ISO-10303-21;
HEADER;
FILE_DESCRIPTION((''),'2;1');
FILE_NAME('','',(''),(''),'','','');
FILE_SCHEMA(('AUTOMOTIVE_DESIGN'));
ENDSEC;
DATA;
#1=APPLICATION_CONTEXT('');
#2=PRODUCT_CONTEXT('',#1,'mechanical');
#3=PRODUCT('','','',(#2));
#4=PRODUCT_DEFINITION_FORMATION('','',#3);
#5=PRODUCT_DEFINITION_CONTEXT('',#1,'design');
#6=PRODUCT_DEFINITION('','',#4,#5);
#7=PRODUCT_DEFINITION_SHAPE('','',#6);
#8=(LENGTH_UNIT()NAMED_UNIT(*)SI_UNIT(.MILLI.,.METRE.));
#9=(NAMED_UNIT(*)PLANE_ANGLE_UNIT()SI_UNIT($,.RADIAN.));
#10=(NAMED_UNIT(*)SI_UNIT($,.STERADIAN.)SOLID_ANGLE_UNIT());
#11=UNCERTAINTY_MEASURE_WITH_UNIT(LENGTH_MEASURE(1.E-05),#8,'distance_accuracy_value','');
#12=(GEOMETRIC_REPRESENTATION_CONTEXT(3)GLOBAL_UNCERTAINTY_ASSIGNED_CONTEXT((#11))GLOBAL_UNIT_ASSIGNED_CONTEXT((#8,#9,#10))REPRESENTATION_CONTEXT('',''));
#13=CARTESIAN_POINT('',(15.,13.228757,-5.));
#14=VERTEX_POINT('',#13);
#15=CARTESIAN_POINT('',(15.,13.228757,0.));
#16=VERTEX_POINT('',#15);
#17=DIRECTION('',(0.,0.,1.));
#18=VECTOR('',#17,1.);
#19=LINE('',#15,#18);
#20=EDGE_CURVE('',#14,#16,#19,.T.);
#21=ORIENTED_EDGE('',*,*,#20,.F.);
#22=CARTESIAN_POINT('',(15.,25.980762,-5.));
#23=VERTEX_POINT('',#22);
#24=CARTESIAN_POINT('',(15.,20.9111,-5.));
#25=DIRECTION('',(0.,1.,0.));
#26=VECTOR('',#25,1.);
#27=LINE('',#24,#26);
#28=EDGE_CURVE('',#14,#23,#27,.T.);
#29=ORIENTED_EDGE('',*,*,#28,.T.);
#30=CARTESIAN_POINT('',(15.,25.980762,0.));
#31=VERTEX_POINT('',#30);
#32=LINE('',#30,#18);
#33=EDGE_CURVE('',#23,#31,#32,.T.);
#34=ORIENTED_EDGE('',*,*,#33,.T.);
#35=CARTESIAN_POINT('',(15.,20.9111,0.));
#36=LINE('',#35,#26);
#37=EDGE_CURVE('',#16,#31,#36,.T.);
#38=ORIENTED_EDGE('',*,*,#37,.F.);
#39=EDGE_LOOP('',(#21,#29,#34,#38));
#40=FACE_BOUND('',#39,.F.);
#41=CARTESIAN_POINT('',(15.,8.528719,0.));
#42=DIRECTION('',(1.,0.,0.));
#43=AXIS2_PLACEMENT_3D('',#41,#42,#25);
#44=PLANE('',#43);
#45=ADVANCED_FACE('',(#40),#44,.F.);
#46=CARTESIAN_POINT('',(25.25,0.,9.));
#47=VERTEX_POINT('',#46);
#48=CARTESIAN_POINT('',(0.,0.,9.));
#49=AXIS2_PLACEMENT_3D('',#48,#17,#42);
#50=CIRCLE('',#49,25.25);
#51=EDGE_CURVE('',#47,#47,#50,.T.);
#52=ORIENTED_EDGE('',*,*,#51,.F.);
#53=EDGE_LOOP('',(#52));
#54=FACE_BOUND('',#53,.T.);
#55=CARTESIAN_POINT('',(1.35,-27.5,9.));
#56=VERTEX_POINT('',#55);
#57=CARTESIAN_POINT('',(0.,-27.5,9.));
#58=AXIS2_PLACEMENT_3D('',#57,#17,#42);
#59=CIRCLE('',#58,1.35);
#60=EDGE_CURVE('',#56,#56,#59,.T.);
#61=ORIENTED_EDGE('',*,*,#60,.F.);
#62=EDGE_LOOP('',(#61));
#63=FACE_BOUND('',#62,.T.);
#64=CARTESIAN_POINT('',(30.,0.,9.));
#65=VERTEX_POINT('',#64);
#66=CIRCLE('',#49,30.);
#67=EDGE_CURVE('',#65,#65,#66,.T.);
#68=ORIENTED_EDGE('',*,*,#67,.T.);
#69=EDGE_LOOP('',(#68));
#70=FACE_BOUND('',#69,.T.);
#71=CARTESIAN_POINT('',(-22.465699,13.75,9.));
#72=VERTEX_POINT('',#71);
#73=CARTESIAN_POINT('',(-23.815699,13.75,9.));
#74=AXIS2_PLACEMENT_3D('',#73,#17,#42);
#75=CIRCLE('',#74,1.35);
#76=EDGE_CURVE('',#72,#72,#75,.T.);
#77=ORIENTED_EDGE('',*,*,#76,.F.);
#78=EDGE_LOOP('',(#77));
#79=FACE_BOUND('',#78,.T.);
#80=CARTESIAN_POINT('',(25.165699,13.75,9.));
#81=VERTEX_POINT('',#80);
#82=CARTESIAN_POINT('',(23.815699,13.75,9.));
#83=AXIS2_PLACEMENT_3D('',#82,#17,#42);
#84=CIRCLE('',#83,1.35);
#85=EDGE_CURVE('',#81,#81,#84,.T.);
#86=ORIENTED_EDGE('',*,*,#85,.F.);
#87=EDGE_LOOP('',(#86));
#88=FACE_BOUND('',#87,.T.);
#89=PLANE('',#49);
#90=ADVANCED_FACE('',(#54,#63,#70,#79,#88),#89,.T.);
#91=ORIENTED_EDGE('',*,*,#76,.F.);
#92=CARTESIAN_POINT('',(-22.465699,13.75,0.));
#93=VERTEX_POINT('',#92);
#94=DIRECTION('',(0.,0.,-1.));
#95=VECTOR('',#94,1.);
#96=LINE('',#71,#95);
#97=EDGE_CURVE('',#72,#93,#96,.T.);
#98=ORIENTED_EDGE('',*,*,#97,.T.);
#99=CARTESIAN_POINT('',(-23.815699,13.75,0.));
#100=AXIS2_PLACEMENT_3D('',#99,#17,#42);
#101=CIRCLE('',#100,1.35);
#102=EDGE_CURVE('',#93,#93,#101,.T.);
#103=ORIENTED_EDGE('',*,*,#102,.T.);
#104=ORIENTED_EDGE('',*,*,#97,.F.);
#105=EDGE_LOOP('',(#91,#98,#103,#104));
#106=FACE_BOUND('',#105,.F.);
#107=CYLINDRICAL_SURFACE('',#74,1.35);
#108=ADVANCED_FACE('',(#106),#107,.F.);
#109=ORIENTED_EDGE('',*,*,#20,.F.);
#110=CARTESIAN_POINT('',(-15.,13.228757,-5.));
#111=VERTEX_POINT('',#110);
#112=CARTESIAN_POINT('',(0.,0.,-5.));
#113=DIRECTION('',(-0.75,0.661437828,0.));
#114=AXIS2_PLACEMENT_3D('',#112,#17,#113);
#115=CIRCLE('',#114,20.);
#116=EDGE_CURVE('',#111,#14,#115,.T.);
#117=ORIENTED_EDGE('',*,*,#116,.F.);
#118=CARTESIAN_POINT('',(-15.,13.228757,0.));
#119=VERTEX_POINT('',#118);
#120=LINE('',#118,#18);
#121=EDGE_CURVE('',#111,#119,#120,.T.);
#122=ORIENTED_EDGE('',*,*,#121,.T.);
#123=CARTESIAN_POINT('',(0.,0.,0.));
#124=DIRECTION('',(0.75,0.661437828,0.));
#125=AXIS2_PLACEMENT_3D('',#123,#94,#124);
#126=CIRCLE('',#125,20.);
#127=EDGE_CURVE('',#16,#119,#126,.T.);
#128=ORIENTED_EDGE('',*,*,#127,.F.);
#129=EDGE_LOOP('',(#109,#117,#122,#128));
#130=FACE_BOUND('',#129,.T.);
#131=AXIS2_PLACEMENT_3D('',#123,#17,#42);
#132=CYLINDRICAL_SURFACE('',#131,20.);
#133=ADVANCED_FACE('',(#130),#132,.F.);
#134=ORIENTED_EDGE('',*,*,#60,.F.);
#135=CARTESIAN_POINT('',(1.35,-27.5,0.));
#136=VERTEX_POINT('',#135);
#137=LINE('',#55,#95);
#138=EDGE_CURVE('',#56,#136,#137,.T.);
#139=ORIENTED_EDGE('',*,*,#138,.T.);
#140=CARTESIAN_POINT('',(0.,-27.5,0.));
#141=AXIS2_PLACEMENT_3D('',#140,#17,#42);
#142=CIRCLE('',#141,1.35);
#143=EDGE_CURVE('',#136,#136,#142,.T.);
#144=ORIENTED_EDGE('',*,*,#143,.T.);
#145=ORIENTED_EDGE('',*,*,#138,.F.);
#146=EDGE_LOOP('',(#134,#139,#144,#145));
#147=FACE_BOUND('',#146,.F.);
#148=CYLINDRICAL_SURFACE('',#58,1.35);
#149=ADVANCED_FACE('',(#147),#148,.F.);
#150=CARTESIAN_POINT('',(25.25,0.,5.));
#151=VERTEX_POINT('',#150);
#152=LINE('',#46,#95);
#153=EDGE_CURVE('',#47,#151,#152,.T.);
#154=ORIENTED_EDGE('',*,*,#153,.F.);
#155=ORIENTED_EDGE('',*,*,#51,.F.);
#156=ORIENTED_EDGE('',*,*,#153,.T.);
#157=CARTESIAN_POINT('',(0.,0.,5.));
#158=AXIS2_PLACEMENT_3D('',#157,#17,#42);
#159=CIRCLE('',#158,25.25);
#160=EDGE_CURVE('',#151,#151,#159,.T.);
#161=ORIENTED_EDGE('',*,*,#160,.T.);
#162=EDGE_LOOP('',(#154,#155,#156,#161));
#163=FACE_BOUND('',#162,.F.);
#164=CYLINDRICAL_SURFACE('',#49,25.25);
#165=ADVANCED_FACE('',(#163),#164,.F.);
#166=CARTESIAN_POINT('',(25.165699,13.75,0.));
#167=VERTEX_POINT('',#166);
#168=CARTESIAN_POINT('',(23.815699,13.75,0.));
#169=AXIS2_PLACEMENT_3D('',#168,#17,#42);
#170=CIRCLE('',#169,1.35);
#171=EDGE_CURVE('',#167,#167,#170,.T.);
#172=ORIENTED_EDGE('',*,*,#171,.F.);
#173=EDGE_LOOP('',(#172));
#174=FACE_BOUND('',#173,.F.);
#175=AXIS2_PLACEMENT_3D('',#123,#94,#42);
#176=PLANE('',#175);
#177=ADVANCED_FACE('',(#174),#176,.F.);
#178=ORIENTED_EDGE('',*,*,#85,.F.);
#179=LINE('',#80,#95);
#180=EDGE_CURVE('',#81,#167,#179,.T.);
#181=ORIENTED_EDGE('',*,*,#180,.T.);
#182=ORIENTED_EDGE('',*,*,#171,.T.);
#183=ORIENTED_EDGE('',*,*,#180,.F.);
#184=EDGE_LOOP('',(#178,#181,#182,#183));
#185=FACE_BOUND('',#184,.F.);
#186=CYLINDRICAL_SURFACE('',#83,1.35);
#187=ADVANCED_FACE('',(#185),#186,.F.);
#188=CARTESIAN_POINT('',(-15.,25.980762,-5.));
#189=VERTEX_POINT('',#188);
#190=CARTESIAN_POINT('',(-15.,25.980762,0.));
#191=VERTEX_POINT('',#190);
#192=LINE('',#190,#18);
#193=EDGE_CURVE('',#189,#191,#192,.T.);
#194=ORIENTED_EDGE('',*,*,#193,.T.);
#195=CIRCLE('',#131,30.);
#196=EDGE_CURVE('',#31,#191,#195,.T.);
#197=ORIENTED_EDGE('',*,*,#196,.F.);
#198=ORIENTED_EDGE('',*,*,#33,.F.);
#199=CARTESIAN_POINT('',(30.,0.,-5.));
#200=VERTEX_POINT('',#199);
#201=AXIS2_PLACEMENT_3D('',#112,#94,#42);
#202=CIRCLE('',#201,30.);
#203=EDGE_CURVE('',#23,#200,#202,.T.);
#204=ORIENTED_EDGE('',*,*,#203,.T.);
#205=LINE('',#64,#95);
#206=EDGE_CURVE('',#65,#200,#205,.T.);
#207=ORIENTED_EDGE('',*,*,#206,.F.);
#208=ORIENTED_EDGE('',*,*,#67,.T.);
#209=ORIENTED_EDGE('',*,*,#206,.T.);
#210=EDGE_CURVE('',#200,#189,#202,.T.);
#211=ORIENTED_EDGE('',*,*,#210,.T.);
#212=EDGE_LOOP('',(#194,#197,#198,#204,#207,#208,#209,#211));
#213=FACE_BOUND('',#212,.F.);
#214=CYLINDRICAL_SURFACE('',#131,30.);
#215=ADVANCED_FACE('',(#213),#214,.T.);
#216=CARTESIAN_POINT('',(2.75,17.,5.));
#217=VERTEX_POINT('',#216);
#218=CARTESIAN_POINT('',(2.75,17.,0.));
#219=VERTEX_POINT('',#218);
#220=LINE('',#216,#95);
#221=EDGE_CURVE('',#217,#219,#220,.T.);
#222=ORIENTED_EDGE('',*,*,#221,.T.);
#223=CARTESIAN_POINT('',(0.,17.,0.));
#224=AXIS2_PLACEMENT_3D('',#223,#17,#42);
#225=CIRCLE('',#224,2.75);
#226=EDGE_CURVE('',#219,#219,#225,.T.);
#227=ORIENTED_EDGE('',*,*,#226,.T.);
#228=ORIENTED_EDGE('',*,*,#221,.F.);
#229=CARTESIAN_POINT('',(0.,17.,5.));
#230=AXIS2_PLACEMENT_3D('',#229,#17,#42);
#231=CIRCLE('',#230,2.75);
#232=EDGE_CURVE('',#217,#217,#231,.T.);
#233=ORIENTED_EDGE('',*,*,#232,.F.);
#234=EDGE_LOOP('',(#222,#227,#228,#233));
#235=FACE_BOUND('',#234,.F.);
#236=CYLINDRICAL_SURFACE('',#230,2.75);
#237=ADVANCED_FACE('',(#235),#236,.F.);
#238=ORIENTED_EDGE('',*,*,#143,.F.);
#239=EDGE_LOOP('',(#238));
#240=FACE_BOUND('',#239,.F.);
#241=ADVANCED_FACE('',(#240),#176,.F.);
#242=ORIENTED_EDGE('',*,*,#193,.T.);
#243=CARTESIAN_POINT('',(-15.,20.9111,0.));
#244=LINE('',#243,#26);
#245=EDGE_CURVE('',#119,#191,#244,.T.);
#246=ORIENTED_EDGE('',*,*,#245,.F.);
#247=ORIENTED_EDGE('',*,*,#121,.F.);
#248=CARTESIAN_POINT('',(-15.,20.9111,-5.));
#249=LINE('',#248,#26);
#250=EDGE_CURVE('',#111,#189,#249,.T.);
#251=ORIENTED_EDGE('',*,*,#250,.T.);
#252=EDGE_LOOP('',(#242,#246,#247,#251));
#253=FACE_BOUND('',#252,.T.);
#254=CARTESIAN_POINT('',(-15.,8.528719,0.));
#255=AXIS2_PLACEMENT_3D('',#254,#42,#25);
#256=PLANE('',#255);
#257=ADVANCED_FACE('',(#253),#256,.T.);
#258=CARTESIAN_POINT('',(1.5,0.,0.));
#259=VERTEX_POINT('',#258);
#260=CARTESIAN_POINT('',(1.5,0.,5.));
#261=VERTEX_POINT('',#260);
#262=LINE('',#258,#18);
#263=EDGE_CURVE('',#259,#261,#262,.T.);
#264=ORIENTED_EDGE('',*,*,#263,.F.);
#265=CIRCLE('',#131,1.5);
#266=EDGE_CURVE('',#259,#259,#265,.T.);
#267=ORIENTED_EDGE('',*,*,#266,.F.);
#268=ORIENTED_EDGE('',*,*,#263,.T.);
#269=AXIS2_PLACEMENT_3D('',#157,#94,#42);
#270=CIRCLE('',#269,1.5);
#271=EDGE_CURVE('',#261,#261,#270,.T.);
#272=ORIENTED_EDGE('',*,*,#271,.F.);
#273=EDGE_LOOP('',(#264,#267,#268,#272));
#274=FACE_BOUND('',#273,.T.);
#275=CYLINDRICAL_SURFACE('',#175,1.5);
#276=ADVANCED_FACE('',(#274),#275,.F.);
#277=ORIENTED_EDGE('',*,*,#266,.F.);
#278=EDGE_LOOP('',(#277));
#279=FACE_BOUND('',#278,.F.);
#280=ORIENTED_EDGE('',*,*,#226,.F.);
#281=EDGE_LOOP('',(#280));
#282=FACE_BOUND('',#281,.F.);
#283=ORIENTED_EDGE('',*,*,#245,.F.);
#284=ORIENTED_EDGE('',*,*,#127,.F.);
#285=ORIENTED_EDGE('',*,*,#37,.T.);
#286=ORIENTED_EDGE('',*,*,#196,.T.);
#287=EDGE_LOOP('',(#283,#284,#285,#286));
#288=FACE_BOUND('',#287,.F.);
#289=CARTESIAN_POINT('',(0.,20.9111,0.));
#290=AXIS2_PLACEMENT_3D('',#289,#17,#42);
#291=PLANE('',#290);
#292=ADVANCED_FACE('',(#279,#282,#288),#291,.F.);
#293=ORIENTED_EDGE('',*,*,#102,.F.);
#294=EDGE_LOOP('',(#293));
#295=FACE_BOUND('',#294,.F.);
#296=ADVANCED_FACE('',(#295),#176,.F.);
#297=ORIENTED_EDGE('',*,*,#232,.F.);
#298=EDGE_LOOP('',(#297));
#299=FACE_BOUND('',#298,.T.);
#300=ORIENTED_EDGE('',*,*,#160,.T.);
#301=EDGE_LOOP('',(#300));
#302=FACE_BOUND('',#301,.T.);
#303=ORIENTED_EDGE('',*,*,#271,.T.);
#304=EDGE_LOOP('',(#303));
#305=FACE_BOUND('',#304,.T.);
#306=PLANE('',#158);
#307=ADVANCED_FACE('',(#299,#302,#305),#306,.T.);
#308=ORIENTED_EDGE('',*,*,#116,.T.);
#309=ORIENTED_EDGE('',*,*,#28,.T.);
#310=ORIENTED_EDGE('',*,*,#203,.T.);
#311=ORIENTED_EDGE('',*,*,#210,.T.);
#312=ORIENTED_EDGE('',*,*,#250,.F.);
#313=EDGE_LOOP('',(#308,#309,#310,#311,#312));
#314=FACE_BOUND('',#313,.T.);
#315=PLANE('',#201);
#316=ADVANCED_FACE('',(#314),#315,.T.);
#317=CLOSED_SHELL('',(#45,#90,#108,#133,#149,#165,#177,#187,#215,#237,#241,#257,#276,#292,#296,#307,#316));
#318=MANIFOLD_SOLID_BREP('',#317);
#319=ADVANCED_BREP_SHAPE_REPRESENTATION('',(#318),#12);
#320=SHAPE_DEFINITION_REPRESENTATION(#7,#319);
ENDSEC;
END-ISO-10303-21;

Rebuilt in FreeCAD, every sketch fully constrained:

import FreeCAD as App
import Part
import Sketcher

doc = App.newDocument("Part")
params = doc.addObject("Spreadsheet::Sheet", "Params")
for row, (alias, value) in enumerate([
    ("sketch1_diameter", "60 mm"),
    ("pad1_length", "9 mm"),
    ("sketch2_diameter", "50.5 mm"),
    ("pocket1_length", "4 mm"),
    ("sketch3_diameter", "3 mm"),
    ("sketch4_diameter", "2.7 mm"),
    ("sketch5_diameter", "5.5 mm"),
    ("sketch6_diameter", "60 mm"),
    ("sketch6_diameter2", "40 mm"),
    ("pad2_length", "5 mm"),
    ("sketch7_width", "30 mm"),
    ("pocket5_length", "5 mm"),
], start=1):
    params.set(f"A{row}", alias)
    params.set(f"B{row}", "=" + value)
    params.setAlias(f"B{row}", alias)

body = doc.addObject("PartDesign::Body", "Body")

# Sketch on XY plane
sketch1 = doc.addObject("Sketcher::SketchObject", "Sketch")
body.addObject(sketch1)
sketch1.AttachmentSupport = (doc.XY_Plane, [""])
sketch1.MapMode = "FlatFace"
sketch1.addGeometry(Part.Circle(App.Vector(0, 0, 0), App.Vector(0, 0, 1), 30), False)
sketch1.addConstraint(Sketcher.Constraint("Coincident", 0, 3, -1, 1))
sketch1.addConstraint(Sketcher.Constraint("Diameter", 0, 60.0))
sketch1.setExpression("Constraints[1]", "Params.sketch1_diameter")
pad1 = doc.addObject("PartDesign::Pad", "Pad")
body.addObject(pad1)
pad1.Profile = sketch1
pad1.setExpression("Length", "Params.pad1_length")

# Sketch on XY plane
sketch2 = doc.addObject("Sketcher::SketchObject", "Sketch001")
body.addObject(sketch2)
sketch2.AttachmentSupport = (doc.XY_Plane, [""])
sketch2.MapMode = "FlatFace"
sketch2.AttachmentOffset = App.Placement(App.Vector(0, 0, 9), App.Rotation())
sketch2.addGeometry(Part.Circle(App.Vector(0, 0, 0), App.Vector(0, 0, 1), 25), False)
sketch2.addConstraint(Sketcher.Constraint("Coincident", 0, 3, -1, 1))
sketch2.addConstraint(Sketcher.Constraint("Diameter", 0, 50.5))
sketch2.setExpression("Constraints[1]", "Params.sketch2_diameter")
pocket1 = doc.addObject("PartDesign::Pocket", "Pocket")
body.addObject(pocket1)
pocket1.Profile = sketch2
pocket1.setExpression("Length", "Params.pocket1_length")

# Sketch on XY plane
sketch3 = doc.addObject("Sketcher::SketchObject", "Sketch002")
body.addObject(sketch3)
sketch3.AttachmentSupport = (doc.XY_Plane, [""])
sketch3.MapMode = "FlatFace"
sketch3.addGeometry(Part.Circle(App.Vector(0, 0, 0), App.Vector(0, 0, 1), 1.5), False)
sketch3.addConstraint(Sketcher.Constraint("Coincident", 0, 3, -1, 1))
sketch3.addConstraint(Sketcher.Constraint("Diameter", 0, 3.0))
sketch3.setExpression("Constraints[1]", "Params.sketch3_diameter")
pocket2 = doc.addObject("PartDesign::Pocket", "Pocket001")
body.addObject(pocket2)
pocket2.Profile = sketch3
pocket2.Type = "ThroughAll"
pocket2.Reversed = True

# Sketch on XY plane
sketch4 = doc.addObject("Sketcher::SketchObject", "Sketch003")
body.addObject(sketch4)
sketch4.AttachmentSupport = (doc.XY_Plane, [""])
sketch4.MapMode = "FlatFace"
sketch4.AttachmentOffset = App.Placement(App.Vector(0, 0, 9), App.Rotation())
sketch4.addGeometry(Part.Circle(App.Vector(23.8, 13.8, 0), App.Vector(0, 0, 1), 1.4), False)
sketch4.addGeometry(Part.Circle(App.Vector(0, -27.5, 0), App.Vector(0, 0, 1), 1.4), False)
sketch4.addGeometry(Part.Circle(App.Vector(-23.8, 13.8, 0), App.Vector(0, 0, 1), 1.4), False)
sketch4.addConstraint(Sketcher.Constraint("Equal", 0, 1))
sketch4.addConstraint(Sketcher.Constraint("Equal", 1, 2))
sketch4.addConstraint(Sketcher.Constraint("Symmetric", 0, 3, 2, 3, -2))
sketch4.addConstraint(Sketcher.Constraint("PointOnObject", 1, 3, -2))
sketch4.addConstraint(Sketcher.Constraint("Diameter", 0, 2.7))
sketch4.addConstraint(Sketcher.Constraint("DistanceY", 1, 3, -1, 1, 27.5))
sketch4.addConstraint(Sketcher.Constraint("DistanceY", -1, 1, 0, 3, 13.75))
sketch4.addConstraint(Sketcher.Constraint("DistanceX", -1, 1, 0, 3, 23.815699))
sketch4.setExpression("Constraints[4]", "Params.sketch4_diameter")
pocket3 = doc.addObject("PartDesign::Pocket", "Pocket002")
body.addObject(pocket3)
pocket3.Profile = sketch4
pocket3.Type = "ThroughAll"

# Sketch on XY plane
sketch5 = doc.addObject("Sketcher::SketchObject", "Sketch004")
body.addObject(sketch5)
sketch5.AttachmentSupport = (doc.XY_Plane, [""])
sketch5.MapMode = "FlatFace"
sketch5.AttachmentOffset = App.Placement(App.Vector(0, 0, 5), App.Rotation())
sketch5.addGeometry(Part.Circle(App.Vector(0, 17, 0), App.Vector(0, 0, 1), 2.8), False)
sketch5.addConstraint(Sketcher.Constraint("PointOnObject", 0, 3, -2))
sketch5.addConstraint(Sketcher.Constraint("Diameter", 0, 5.5))
sketch5.addConstraint(Sketcher.Constraint("DistanceY", -1, 1, 0, 3, 17.0))
sketch5.setExpression("Constraints[1]", "Params.sketch5_diameter")
pocket4 = doc.addObject("PartDesign::Pocket", "Pocket003")
body.addObject(pocket4)
pocket4.Profile = sketch5
pocket4.Type = "ThroughAll"

# Sketch on XY plane
sketch6 = doc.addObject("Sketcher::SketchObject", "Sketch005")
body.addObject(sketch6)
sketch6.AttachmentSupport = (doc.XY_Plane, [""])
sketch6.MapMode = "FlatFace"
sketch6.addGeometry(Part.Circle(App.Vector(0, 0, 0), App.Vector(0, 0, 1), 30), False)
sketch6.addGeometry(Part.Circle(App.Vector(0, 0, 0), App.Vector(0, 0, 1), 20), False)
sketch6.addConstraint(Sketcher.Constraint("Coincident", 0, 3, -1, 1))
sketch6.addConstraint(Sketcher.Constraint("Coincident", 1, 3, -1, 1))
sketch6.addConstraint(Sketcher.Constraint("Diameter", 0, 60.0))
sketch6.addConstraint(Sketcher.Constraint("Diameter", 1, 40.0))
sketch6.setExpression("Constraints[2]", "Params.sketch6_diameter")
sketch6.setExpression("Constraints[3]", "Params.sketch6_diameter2")
pad2 = doc.addObject("PartDesign::Pad", "Pad001")
body.addObject(pad2)
pad2.Profile = sketch6
pad2.setExpression("Length", "Params.pad2_length")
pad2.Reversed = True

# Sketch on XY plane
sketch7 = doc.addObject("Sketcher::SketchObject", "Sketch006")
body.addObject(sketch7)
sketch7.AttachmentSupport = (doc.XY_Plane, [""])
sketch7.MapMode = "FlatFace"
sketch7.addGeometry(Part.LineSegment(App.Vector(-15, 33, 0), App.Vector(-15, 9, 0)), False)
sketch7.addGeometry(Part.LineSegment(App.Vector(-15, 9, 0), App.Vector(15, 9, 0)), False)
sketch7.addGeometry(Part.LineSegment(App.Vector(15, 9, 0), App.Vector(15, 33, 0)), False)
sketch7.addGeometry(Part.LineSegment(App.Vector(15, 33, 0), App.Vector(-15, 33, 0)), False)
sketch7.addConstraint(Sketcher.Constraint("Coincident", 0, 2, 1, 1))
sketch7.addConstraint(Sketcher.Constraint("Coincident", 1, 2, 2, 1))
sketch7.addConstraint(Sketcher.Constraint("Coincident", 2, 2, 3, 1))
sketch7.addConstraint(Sketcher.Constraint("Coincident", 3, 2, 0, 1))
sketch7.addConstraint(Sketcher.Constraint("Vertical", 0))
sketch7.addConstraint(Sketcher.Constraint("Horizontal", 1))
sketch7.addConstraint(Sketcher.Constraint("Vertical", 2))
sketch7.addConstraint(Sketcher.Constraint("Horizontal", 3))
sketch7.addConstraint(Sketcher.Constraint("DistanceX", 1, 1, 1, 2, 30.0))
sketch7.addConstraint(Sketcher.Constraint("DistanceX", 0, 2, -1, 1, 15.0))
sketch7.addConstraint(Sketcher.Constraint("DistanceY", 0, 2, 0, 1, 24.764763))
sketch7.addConstraint(Sketcher.Constraint("DistanceY", -1, 1, 0, 2, 8.528719))
sketch7.setExpression("Constraints[8]", "Params.sketch7_width")
pocket5 = doc.addObject("PartDesign::Pocket", "Pocket004")
body.addObject(pocket5)
pocket5.Profile = sketch7
pocket5.setExpression("Length", "Params.pocket5_length")

doc.recompute()
